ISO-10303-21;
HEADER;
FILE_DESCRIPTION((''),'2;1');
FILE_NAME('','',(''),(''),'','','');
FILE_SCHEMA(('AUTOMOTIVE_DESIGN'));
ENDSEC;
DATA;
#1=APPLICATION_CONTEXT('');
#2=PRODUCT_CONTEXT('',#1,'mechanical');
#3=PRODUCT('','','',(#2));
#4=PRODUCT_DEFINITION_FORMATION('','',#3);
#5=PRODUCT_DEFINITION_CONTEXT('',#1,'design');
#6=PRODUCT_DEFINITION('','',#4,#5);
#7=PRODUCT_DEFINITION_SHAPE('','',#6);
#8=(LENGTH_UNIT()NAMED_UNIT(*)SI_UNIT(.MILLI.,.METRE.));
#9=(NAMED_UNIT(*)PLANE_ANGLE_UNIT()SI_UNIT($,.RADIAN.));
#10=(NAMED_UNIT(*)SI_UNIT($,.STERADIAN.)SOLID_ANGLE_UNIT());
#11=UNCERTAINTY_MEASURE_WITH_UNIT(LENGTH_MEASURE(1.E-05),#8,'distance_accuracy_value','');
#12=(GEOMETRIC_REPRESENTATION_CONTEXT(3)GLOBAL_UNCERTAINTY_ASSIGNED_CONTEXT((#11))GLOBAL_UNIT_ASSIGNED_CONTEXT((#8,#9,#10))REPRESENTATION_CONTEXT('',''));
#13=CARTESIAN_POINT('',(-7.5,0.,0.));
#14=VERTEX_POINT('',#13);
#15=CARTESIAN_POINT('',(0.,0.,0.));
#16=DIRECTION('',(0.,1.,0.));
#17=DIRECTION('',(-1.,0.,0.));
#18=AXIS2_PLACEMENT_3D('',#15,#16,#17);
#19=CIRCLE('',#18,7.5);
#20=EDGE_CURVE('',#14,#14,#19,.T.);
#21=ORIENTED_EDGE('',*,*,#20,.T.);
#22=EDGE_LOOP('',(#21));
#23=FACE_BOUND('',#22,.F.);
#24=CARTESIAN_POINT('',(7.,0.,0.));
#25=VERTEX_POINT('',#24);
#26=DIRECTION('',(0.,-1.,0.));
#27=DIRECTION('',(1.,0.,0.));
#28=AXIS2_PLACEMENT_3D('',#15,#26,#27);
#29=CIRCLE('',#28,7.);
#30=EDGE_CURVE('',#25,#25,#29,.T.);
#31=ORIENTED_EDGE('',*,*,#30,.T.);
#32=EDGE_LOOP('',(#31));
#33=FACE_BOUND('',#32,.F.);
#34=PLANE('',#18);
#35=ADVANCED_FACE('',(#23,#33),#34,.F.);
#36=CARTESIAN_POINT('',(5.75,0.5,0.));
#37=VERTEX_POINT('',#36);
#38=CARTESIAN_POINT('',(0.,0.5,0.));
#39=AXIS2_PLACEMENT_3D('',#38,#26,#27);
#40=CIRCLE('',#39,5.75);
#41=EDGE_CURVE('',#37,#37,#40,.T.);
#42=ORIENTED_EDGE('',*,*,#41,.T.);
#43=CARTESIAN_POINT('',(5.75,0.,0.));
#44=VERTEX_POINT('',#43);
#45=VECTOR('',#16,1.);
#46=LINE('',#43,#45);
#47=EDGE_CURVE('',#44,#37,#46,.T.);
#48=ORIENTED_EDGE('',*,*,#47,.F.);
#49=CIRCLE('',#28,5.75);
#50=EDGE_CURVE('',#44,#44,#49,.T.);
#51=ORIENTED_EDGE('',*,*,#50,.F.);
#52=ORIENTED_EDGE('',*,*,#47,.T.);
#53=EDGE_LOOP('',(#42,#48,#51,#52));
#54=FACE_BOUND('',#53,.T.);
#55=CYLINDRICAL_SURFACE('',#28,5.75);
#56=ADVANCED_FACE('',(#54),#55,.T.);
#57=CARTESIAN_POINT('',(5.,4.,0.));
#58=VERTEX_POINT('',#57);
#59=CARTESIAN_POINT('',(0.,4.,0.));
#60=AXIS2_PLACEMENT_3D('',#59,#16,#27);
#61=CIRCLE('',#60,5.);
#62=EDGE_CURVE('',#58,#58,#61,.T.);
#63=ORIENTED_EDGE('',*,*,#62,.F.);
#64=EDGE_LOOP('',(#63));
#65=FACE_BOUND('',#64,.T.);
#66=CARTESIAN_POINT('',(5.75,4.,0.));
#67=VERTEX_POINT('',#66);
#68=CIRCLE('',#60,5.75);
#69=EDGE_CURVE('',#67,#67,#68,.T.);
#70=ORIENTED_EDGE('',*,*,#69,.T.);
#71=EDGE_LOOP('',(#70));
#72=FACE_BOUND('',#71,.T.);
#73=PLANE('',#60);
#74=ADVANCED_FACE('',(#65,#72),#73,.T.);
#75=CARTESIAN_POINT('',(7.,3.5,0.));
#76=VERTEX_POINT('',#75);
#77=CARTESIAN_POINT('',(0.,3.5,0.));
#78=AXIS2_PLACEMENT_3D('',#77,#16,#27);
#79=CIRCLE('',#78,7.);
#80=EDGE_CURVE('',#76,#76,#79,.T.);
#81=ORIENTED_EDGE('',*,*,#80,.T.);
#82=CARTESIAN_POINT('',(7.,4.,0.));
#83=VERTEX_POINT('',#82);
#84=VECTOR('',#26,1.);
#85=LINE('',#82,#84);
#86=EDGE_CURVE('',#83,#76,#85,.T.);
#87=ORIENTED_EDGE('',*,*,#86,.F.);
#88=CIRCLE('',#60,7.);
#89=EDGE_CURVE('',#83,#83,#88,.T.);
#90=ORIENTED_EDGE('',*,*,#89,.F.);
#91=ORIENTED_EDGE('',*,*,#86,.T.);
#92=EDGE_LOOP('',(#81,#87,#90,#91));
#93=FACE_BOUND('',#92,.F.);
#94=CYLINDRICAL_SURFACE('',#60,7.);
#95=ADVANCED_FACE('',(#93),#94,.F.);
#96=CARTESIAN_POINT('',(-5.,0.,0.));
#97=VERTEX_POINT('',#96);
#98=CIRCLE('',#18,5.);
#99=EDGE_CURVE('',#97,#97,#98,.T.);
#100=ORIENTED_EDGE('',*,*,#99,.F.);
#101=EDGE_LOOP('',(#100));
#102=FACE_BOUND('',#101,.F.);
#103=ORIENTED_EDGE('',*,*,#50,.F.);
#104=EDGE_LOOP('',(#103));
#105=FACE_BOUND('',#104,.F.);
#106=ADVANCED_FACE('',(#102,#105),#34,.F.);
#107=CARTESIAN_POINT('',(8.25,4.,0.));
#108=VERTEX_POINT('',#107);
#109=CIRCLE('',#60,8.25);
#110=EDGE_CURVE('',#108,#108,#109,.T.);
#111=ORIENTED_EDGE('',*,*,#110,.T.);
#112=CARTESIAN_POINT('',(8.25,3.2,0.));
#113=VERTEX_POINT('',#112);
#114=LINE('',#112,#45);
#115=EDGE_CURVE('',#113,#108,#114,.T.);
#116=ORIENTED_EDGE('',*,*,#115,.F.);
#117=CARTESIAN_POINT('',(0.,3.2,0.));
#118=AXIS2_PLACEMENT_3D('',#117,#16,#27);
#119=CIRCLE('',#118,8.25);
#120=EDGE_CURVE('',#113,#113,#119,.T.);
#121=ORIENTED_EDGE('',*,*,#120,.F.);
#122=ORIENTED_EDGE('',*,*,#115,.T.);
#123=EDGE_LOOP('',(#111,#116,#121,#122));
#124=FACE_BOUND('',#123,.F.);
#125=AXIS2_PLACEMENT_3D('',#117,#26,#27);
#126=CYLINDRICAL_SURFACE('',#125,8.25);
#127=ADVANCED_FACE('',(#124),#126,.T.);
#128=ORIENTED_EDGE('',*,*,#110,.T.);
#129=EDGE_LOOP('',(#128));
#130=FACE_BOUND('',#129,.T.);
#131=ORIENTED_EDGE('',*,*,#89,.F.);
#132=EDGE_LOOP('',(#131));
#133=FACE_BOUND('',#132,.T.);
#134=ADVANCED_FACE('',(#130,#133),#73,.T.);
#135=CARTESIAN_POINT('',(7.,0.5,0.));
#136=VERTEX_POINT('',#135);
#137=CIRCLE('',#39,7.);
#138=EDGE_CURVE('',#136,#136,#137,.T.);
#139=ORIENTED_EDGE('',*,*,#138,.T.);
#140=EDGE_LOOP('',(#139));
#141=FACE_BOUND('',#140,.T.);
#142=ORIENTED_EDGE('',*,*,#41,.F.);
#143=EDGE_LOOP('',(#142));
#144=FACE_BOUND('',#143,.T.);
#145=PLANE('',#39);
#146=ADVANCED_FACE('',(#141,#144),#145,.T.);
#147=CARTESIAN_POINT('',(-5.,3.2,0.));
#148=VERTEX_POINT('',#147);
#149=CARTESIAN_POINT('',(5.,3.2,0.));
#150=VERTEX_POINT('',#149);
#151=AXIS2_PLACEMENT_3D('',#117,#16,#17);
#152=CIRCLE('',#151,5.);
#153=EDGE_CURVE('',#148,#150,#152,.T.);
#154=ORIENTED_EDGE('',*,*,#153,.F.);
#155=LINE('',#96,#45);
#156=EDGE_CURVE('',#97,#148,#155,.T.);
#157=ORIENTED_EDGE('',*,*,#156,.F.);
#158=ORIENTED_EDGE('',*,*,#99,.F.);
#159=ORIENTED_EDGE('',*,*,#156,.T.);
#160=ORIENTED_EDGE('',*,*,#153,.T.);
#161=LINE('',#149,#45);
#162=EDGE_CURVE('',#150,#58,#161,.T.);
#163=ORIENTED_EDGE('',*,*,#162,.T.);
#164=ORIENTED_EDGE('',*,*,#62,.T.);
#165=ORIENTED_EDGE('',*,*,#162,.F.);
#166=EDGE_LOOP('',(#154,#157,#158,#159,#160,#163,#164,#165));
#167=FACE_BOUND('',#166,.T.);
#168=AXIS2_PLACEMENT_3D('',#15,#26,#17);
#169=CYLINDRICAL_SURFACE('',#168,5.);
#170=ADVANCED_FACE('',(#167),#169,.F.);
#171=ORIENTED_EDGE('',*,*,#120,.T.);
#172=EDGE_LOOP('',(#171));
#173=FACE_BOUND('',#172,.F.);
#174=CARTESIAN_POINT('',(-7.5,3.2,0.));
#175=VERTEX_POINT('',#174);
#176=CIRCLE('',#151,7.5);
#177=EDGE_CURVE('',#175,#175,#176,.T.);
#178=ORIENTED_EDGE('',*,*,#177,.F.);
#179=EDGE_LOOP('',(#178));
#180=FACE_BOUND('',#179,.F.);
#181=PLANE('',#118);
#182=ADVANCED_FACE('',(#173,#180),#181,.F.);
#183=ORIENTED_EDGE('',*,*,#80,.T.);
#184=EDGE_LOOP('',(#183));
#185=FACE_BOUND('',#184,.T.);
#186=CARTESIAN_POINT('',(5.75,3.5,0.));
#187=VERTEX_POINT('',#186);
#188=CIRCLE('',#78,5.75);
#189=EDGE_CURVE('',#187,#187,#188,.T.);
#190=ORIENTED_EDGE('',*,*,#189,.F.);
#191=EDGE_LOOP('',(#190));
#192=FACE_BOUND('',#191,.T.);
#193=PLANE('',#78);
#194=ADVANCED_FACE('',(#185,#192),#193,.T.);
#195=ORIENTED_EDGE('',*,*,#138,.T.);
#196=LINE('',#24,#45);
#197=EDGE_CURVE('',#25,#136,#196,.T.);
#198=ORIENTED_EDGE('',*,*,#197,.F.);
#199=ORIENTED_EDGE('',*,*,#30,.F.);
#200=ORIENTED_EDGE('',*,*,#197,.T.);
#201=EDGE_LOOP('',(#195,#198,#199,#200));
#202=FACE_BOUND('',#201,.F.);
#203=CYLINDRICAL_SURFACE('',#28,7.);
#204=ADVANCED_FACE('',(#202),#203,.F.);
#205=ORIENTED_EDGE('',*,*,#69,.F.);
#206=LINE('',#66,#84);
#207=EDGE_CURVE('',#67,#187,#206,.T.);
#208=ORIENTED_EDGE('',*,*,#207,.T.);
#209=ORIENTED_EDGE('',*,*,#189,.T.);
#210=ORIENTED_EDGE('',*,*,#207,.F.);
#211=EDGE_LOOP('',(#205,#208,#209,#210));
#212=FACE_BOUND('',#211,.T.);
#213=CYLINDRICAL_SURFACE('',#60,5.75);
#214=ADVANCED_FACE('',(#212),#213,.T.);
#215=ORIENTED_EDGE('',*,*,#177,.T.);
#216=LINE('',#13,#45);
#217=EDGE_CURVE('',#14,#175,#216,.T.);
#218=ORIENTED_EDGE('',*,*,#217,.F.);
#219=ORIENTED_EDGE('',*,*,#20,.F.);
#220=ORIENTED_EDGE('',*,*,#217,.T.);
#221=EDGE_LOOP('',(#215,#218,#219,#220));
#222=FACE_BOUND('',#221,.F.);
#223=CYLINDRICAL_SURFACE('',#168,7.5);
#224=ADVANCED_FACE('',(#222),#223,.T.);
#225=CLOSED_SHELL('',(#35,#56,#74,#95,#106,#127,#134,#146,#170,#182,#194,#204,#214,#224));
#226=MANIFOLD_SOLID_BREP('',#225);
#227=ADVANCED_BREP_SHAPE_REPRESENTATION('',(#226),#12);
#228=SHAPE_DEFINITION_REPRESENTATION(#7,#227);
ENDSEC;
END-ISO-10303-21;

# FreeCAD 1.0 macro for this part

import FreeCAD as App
import Part
import Sketcher

V = App.Vector

doc = App.newDocument("Part")
body = doc.addObject("PartDesign::Body", "Body")

sketch1 = body.newObject("Sketcher::SketchObject", "Sketch")
sketch1.AttachmentSupport = (doc.getObject("XZ_Plane"), [""])
sketch1.MapMode = "FlatFace"
sketch1.addGeometry([
    Part.Circle(V(0, 0, 0), V(0, 0, 1), 8),
    Part.Circle(V(0, 0, 0), V(0, 0, 1), 5),
], False)
sketch1.addConstraint([
    Sketcher.Constraint("Coincident", 0, 3, -1, 1),
    Sketcher.Constraint("Coincident", 1, 3, -1, 1),
    Sketcher.Constraint("Diameter", 0, 15.0),
    Sketcher.Constraint("Diameter", 1, 10.0),
])
pad1 = body.newObject("PartDesign::Pad", "Pad")
pad1.Profile = sketch1
pad1.Length = 3.2
pad1.Reversed = True

sketch2 = body.newObject("Sketcher::SketchObject", "Sketch001")
sketch2.AttachmentSupport = (doc.getObject("XZ_Plane"), [""])
sketch2.MapMode = "FlatFace"
sketch2.AttachmentOffset = App.Placement(V(0, 0, -3.2), App.Rotation())
sketch2.addGeometry([
    Part.Circle(V(0, 0, 0), V(0, 0, 1), 8),
    Part.Circle(V(0, 0, 0), V(0, 0, 1), 5),
], False)
sketch2.addConstraint([
    Sketcher.Constraint("Coincident", 0, 3, -1, 1),
    Sketcher.Constraint("Coincident", 1, 3, -1, 1),
    Sketcher.Constraint("Diameter", 0, 16.5),
    Sketcher.Constraint("Diameter", 1, 10.0),
])
pad2 = body.newObject("PartDesign::Pad", "Pad001")
pad2.Profile = sketch2
pad2.Length = 0.8
pad2.Reversed = True

sketch3 = body.newObject("Sketcher::SketchObject", "Sketch002")
sketch3.AttachmentSupport = (doc.getObject("XZ_Plane"), [""])
sketch3.MapMode = "FlatFace"
sketch3.AttachmentOffset = App.Placement(V(0, 0, -4), App.Rotation())
sketch3.addGeometry([
    Part.Circle(V(0, 0, 0), V(0, 0, 1), 7),
    Part.Circle(V(0, 0, 0), V(0, 0, 1), 6),
], False)
sketch3.addConstraint([
    Sketcher.Constraint("Coincident", 0, 3, -1, 1),
    Sketcher.Constraint("Coincident", 1, 3, -1, 1),
    Sketcher.Constraint("Diameter", 0, 14.0),
    Sketcher.Constraint("Diameter", 1, 11.5),
])
pocket1 = body.newObject("PartDesign::Pocket", "Pocket")
pocket1.Profile = sketch3
pocket1.Length = 0.5
pocket1.Reversed = True

sketch4 = body.newObject("Sketcher::SketchObject", "Sketch003")
sketch4.AttachmentSupport = (doc.getObject("XZ_Plane"), [""])
sketch4.MapMode = "FlatFace"
sketch4.addGeometry([
    Part.Circle(V(0, 0, 0), V(0, 0, 1), 7),
    Part.Circle(V(0, 0, 0), V(0, 0, 1), 6),
], False)
sketch4.addConstraint([
    Sketcher.Constraint("Coincident", 0, 3, -1, 1),
    Sketcher.Constraint("Coincident", 1, 3, -1, 1),
    Sketcher.Constraint("Diameter", 0, 14.0),
    Sketcher.Constraint("Diameter", 1, 11.5),
])
pocket2 = body.newObject("PartDesign::Pocket", "Pocket001")
pocket2.Profile = sketch4
pocket2.Length = 0.5

doc.recompute()
